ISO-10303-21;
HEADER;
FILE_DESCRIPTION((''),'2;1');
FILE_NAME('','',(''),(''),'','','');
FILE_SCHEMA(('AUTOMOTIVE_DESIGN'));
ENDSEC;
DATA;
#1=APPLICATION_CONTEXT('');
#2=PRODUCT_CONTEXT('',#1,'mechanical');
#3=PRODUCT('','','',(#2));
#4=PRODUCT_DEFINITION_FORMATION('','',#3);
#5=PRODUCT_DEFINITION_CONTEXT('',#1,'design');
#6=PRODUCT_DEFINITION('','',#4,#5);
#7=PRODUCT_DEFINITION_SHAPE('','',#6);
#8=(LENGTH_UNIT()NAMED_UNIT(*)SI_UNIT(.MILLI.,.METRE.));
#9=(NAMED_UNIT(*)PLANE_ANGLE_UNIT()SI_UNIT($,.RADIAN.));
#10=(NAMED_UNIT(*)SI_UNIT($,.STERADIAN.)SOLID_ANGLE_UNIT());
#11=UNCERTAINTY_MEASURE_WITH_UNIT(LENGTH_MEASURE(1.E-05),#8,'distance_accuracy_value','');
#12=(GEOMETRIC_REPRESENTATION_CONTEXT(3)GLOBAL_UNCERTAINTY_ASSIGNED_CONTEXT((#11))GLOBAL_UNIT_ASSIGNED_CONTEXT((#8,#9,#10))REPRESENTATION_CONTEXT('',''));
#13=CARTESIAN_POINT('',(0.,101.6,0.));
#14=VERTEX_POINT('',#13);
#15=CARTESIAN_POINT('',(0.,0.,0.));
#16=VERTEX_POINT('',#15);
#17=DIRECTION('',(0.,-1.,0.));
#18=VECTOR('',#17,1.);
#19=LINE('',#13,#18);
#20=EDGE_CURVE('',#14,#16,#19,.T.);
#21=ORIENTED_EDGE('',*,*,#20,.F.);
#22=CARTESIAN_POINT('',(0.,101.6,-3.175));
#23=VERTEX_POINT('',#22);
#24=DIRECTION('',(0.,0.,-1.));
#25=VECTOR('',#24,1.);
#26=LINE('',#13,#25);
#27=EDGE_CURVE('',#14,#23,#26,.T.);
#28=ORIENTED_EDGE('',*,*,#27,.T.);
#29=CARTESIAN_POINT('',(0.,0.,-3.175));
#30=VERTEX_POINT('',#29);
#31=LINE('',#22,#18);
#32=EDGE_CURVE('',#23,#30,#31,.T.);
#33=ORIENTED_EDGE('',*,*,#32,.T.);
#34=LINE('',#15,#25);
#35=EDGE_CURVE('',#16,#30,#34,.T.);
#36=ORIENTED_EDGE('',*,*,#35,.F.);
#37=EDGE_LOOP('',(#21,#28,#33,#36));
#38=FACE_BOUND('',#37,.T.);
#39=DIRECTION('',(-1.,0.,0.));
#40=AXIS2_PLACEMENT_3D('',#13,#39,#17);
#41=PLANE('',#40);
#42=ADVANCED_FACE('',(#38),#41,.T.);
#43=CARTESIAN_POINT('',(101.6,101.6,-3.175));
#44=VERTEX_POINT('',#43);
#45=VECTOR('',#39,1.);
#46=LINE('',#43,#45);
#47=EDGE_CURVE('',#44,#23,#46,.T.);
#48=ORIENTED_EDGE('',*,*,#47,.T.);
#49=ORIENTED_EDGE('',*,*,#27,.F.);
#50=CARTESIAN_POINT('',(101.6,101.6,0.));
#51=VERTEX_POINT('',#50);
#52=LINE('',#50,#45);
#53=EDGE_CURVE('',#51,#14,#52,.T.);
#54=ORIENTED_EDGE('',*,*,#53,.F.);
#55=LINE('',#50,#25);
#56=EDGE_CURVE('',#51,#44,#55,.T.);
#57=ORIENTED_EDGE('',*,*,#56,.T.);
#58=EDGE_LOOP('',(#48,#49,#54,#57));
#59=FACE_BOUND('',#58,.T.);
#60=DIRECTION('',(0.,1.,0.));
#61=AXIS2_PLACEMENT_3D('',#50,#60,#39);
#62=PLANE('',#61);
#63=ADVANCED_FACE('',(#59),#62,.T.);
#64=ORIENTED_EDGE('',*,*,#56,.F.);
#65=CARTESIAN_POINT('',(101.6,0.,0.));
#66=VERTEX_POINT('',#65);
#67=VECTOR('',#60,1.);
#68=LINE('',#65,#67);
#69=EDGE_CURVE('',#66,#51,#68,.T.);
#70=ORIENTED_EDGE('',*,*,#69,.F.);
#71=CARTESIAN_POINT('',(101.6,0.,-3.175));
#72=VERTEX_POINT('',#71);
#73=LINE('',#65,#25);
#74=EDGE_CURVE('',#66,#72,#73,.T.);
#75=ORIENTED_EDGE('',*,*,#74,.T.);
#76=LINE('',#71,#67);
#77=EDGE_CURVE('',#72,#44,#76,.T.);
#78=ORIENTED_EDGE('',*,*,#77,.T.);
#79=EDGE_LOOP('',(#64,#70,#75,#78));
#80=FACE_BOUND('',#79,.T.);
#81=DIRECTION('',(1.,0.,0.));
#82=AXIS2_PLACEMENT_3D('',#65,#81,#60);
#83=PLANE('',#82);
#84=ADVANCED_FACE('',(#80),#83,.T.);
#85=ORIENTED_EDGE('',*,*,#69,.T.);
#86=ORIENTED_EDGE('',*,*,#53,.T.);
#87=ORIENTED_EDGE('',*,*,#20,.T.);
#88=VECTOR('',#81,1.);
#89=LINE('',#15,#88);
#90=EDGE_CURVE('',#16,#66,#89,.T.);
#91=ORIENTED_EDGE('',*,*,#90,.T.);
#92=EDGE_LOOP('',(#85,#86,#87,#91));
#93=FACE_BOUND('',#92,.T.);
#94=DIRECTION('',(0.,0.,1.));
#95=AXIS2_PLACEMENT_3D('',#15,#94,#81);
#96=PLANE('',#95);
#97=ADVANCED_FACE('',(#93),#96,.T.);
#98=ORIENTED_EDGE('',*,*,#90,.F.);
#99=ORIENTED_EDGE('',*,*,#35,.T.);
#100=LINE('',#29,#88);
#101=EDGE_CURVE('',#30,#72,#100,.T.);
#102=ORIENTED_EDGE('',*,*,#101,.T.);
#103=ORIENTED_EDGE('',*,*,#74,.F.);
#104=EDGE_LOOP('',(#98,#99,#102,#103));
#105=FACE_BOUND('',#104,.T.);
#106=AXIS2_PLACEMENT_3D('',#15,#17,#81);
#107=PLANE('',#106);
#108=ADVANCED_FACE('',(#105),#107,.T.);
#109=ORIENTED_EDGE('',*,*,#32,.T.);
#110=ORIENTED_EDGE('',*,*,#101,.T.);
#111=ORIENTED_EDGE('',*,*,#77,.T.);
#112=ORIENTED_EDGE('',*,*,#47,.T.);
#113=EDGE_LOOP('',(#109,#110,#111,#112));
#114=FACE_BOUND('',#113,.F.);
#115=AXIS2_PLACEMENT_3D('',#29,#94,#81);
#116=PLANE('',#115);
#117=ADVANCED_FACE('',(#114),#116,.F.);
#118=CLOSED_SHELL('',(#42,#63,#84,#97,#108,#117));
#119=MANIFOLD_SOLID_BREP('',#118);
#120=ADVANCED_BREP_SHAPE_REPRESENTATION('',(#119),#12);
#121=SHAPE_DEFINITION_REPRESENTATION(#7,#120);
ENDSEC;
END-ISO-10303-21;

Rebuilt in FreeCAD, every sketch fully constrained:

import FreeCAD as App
import Part
import Sketcher

V = App.Vector
Q = App.Units.Quantity

doc = App.newDocument("Part")
body = doc.addObject("PartDesign::Body", "Body")

# Sketch on XY plane
sketch1 = doc.addObject("Sketcher::SketchObject", "Sketch")
body.addObject(sketch1)
sketch1.AttachmentSupport = (doc.XY_Plane, [""])
sketch1.MapMode = "FlatFace"
sketch1.addGeometry(Part.LineSegment(V(0, 101.6, 0), V(0, 0, 0)), False)
sketch1.addGeometry(Part.LineSegment(V(0, 0, 0), V(101.6, 0, 0)), False)
sketch1.addGeometry(Part.LineSegment(V(101.6, 0, 0), V(101.6, 101.6, 0)), False)
sketch1.addGeometry(Part.LineSegment(V(101.6, 101.6, 0), V(0, 101.6, 0)), False)
sketch1.addConstraint(Sketcher.Constraint("Coincident", 0, 2, 1, 1))
sketch1.addConstraint(Sketcher.Constraint("Coincident", 1, 2, 2, 1))
sketch1.addConstraint(Sketcher.Constraint("Coincident", 2, 2, 3, 1))
sketch1.addConstraint(Sketcher.Constraint("Coincident", 3, 2, 0, 1))
sketch1.addConstraint(Sketcher.Constraint("Vertical", 0))
sketch1.addConstraint(Sketcher.Constraint("Horizontal", 1))
sketch1.addConstraint(Sketcher.Constraint("Vertical", 2))
sketch1.addConstraint(Sketcher.Constraint("Horizontal", 3))
sketch1.addConstraint(Sketcher.Constraint("Coincident", 0, 2, -1, 1))
sketch1.addConstraint(Sketcher.Constraint("Equal", 3, 0))
sketch1.addConstraint(Sketcher.Constraint("DistanceX", 1, 1, 1, 2, Q("4 in")))
pad1 = doc.addObject("PartDesign::Pad", "Pad")
body.addObject(pad1)
pad1.Profile = sketch1
pad1.Length = Q("0.125 in")
pad1.Reversed = True

doc.recompute()
